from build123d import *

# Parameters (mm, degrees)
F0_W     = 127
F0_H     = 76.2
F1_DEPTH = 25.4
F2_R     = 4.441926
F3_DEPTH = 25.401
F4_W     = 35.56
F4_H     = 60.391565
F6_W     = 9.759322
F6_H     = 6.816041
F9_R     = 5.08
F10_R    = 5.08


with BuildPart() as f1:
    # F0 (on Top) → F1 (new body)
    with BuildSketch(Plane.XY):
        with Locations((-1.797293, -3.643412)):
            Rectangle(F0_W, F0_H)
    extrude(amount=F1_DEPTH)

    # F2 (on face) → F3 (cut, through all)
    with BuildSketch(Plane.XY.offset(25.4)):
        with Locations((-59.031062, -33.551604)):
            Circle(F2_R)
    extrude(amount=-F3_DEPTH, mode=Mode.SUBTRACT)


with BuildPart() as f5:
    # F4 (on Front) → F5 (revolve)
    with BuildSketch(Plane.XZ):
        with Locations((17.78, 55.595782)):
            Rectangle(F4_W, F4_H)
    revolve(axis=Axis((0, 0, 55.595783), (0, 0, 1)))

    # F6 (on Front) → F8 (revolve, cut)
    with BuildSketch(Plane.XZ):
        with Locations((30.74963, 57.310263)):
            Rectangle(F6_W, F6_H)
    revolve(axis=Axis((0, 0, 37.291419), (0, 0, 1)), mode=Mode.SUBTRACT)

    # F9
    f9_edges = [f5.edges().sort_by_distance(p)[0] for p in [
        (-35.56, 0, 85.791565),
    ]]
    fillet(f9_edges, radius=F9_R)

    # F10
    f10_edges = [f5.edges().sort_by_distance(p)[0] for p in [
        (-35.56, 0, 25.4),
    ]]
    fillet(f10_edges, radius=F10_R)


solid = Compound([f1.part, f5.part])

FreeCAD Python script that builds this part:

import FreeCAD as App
import Part
import Sketcher
from FreeCAD import Vector
Q = App.Units.Quantity


def edges_at(feature, points):
    """Names of the edges that pass closest to the given points."""
    edges = feature.Shape.Edges
    near = lambda p: min(range(len(edges)), key=lambda i: edges[i].distToShape(Part.Vertex(*p))[0])
    return sorted({f"Edge{near(p) + 1}" for p in points})

doc = App.newDocument("Part")
body = doc.addObject("PartDesign::Body", "Body")

# Sketch on XY plane
sketch1 = body.newObject("Sketcher::SketchObject", "Sketch")
sketch1.AttachmentSupport = (doc.getObject("XY_Plane"), [""])
sketch1.MapMode = "FlatFace"
sketch1.addGeometry([
    Part.LineSegment(Vector(-65.297293, 34.456588, 0), Vector(-65.297293, -41.743412, 0)),
    Part.LineSegment(Vector(-65.297293, -41.743412, 0), Vector(61.702707, -41.743412, 0)),
    Part.LineSegment(Vector(61.702707, -41.743412, 0), Vector(61.702707, 34.456588, 0)),
    Part.LineSegment(Vector(61.702707, 34.456588, 0), Vector(-65.297293, 34.456588, 0)),
], False)
sketch1.addConstraint([
    Sketcher.Constraint("Coincident", 0, 2, 1, 1),
    Sketcher.Constraint("Coincident", 1, 2, 2, 1),
    Sketcher.Constraint("Coincident", 2, 2, 3, 1),
    Sketcher.Constraint("Coincident", 3, 2, 0, 1),
    Sketcher.Constraint("Vertical", 0),
    Sketcher.Constraint("Horizontal", 1),
    Sketcher.Constraint("Vertical", 2),
    Sketcher.Constraint("Horizontal", 3),
    Sketcher.Constraint("DistanceX", 1, 1, 1, 2, Q("5 in")),
    Sketcher.Constraint("DistanceY", 0, 2, 0, 1, Q("3 in")),
    Sketcher.Constraint("DistanceY", -1, 1, 2, 2, Q("34.456588 mm")),
    Sketcher.Constraint("DistanceX", 0, 2, -1, 1, Q("65.297293 mm")),
])
pad1 = body.newObject("PartDesign::Pad", "Pad")
pad1.Profile = sketch1
pad1.Length = Q("1 in")

# Sketch on XY plane
sketch2 = body.newObject("Sketcher::SketchObject", "Sketch001")
sketch2.AttachmentSupport = (doc.getObject("XY_Plane"), [""])
sketch2.MapMode = "FlatFace"
sketch2.AttachmentOffset = App.Placement(Vector(0, 0, 1 * 25.4), App.Rotation())
sketch2.addGeometry(Part.Circle(Vector(-59.031062, -33.551604, 0), Vector(0, 0, 1), 4.441926), False)
sketch2.addConstraint([
    Sketcher.Constraint("Diameter", 0, Q("8.883852 mm")),
    Sketcher.Constraint("DistanceX", 0, 3, -1, 1, Q("59.031062 mm")),
    Sketcher.Constraint("DistanceY", 0, 3, -1, 1, Q("33.551604 mm")),
])
pocket1 = body.newObject("PartDesign::Pocket", "Pocket")
pocket1.Profile = sketch2
pocket1.Type = "ThroughAll"
body2 = doc.addObject("PartDesign::Body", "Body001")

# Sketch on XZ plane
sketch3 = body2.newObject("Sketcher::SketchObject", "Sketch002")
sketch3.AttachmentSupport = (doc.getObject("XZ_Plane001"), [""])
sketch3.MapMode = "FlatFace"
sketch3.addGeometry([
    Part.LineSegment(Vector(0, 85.791565, 0), Vector(0, 25.399999, 0)),
    Part.LineSegment(Vector(0, 25.399999, 0), Vector(35.56, 25.399999, 0)),
    Part.LineSegment(Vector(35.56, 25.399999, 0), Vector(35.56, 85.791565, 0)),
    Part.LineSegment(Vector(35.56, 85.791565, 0), Vector(0, 85.791565, 0)),
], False)
sketch3.addConstraint([
    Sketcher.Constraint("Coincident", 0, 2, 1, 1),
    Sketcher.Constraint("Coincident", 1, 2, 2, 1),
    Sketcher.Constraint("Coincident", 2, 2, 3, 1),
    Sketcher.Constraint("Coincident", 3, 2, 0, 1),
    Sketcher.Constraint("Vertical", 0),
    Sketcher.Constraint("Horizontal", 1),
    Sketcher.Constraint("Vertical", 2),
    Sketcher.Constraint("Horizontal", 3),
    Sketcher.Constraint("PointOnObject", 0, 2, -2),
    Sketcher.Constraint("DistanceX", 1, 1, 1, 2, Q("1.4 in")),
    Sketcher.Constraint("DistanceY", -1, 1, 0, 2, Q("1 in")),
    Sketcher.Constraint("DistanceY", 0, 2, 0, 1, Q("60.391565 mm")),
])
revolution = body2.newObject("PartDesign::Revolution", "Revolution")
revolution.Profile = sketch3
revolution.ReferenceAxis = (sketch3, ["V_Axis"])
revolution.Angle = 360

# Sketch on XZ plane
sketch4 = body2.newObject("Sketcher::SketchObject", "Sketch003")
sketch4.AttachmentSupport = (doc.getObject("XZ_Plane001"), [""])
sketch4.MapMode = "FlatFace"
sketch4.addGeometry([
    Part.LineSegment(Vector(25.869969, 60.718283, 0), Vector(25.869969, 53.902242, 0)),
    Part.LineSegment(Vector(25.869969, 53.902242, 0), Vector(35.629291, 53.902242, 0)),
    Part.LineSegment(Vector(35.629291, 53.902242, 0), Vector(35.629291, 60.718283, 0)),
    Part.LineSegment(Vector(35.629291, 60.718283, 0), Vector(25.869969, 60.718283, 0)),
], False)
sketch4.addConstraint([
    Sketcher.Constraint("Coincident", 0, 2, 1, 1),
    Sketcher.Constraint("Coincident", 1, 2, 2, 1),
    Sketcher.Constraint("Coincident", 2, 2, 3, 1),
    Sketcher.Constraint("Coincident", 3, 2, 0, 1),
    Sketcher.Constraint("Vertical", 0),
    Sketcher.Constraint("Horizontal", 1),
    Sketcher.Constraint("Vertical", 2),
    Sketcher.Constraint("Horizontal", 3),
    Sketcher.Constraint("DistanceY", 0, 2, 0, 1, Q("6.816041 mm")),
    Sketcher.Constraint("DistanceX", 1, 1, 1, 2, Q("9.759322 mm")),
    Sketcher.Constraint("DistanceX", -1, 1, 0, 2, Q("25.869969 mm")),
    Sketcher.Constraint("DistanceY", -1, 1, 0, 2, Q("53.902242 mm")),
])
groove = body2.newObject("PartDesign::Groove", "Groove")
groove.Profile = sketch4
groove.ReferenceAxis = (sketch4, ["V_Axis"])
groove.Angle = 360
doc.recompute()

fillet = body2.newObject("PartDesign::Fillet", "Fillet")
fillet.Base = (groove, edges_at(groove, [(-35.56, 0, 85.792)]))
fillet.Radius = Q("0.2 in")
doc.recompute()

fillet2 = body2.newObject("PartDesign::Fillet", "Fillet001")
fillet2.Base = (fillet, edges_at(fillet, [(-35.56, 0, 25.4)]))
fillet2.Radius = Q("0.2 in")

doc.recompute()
